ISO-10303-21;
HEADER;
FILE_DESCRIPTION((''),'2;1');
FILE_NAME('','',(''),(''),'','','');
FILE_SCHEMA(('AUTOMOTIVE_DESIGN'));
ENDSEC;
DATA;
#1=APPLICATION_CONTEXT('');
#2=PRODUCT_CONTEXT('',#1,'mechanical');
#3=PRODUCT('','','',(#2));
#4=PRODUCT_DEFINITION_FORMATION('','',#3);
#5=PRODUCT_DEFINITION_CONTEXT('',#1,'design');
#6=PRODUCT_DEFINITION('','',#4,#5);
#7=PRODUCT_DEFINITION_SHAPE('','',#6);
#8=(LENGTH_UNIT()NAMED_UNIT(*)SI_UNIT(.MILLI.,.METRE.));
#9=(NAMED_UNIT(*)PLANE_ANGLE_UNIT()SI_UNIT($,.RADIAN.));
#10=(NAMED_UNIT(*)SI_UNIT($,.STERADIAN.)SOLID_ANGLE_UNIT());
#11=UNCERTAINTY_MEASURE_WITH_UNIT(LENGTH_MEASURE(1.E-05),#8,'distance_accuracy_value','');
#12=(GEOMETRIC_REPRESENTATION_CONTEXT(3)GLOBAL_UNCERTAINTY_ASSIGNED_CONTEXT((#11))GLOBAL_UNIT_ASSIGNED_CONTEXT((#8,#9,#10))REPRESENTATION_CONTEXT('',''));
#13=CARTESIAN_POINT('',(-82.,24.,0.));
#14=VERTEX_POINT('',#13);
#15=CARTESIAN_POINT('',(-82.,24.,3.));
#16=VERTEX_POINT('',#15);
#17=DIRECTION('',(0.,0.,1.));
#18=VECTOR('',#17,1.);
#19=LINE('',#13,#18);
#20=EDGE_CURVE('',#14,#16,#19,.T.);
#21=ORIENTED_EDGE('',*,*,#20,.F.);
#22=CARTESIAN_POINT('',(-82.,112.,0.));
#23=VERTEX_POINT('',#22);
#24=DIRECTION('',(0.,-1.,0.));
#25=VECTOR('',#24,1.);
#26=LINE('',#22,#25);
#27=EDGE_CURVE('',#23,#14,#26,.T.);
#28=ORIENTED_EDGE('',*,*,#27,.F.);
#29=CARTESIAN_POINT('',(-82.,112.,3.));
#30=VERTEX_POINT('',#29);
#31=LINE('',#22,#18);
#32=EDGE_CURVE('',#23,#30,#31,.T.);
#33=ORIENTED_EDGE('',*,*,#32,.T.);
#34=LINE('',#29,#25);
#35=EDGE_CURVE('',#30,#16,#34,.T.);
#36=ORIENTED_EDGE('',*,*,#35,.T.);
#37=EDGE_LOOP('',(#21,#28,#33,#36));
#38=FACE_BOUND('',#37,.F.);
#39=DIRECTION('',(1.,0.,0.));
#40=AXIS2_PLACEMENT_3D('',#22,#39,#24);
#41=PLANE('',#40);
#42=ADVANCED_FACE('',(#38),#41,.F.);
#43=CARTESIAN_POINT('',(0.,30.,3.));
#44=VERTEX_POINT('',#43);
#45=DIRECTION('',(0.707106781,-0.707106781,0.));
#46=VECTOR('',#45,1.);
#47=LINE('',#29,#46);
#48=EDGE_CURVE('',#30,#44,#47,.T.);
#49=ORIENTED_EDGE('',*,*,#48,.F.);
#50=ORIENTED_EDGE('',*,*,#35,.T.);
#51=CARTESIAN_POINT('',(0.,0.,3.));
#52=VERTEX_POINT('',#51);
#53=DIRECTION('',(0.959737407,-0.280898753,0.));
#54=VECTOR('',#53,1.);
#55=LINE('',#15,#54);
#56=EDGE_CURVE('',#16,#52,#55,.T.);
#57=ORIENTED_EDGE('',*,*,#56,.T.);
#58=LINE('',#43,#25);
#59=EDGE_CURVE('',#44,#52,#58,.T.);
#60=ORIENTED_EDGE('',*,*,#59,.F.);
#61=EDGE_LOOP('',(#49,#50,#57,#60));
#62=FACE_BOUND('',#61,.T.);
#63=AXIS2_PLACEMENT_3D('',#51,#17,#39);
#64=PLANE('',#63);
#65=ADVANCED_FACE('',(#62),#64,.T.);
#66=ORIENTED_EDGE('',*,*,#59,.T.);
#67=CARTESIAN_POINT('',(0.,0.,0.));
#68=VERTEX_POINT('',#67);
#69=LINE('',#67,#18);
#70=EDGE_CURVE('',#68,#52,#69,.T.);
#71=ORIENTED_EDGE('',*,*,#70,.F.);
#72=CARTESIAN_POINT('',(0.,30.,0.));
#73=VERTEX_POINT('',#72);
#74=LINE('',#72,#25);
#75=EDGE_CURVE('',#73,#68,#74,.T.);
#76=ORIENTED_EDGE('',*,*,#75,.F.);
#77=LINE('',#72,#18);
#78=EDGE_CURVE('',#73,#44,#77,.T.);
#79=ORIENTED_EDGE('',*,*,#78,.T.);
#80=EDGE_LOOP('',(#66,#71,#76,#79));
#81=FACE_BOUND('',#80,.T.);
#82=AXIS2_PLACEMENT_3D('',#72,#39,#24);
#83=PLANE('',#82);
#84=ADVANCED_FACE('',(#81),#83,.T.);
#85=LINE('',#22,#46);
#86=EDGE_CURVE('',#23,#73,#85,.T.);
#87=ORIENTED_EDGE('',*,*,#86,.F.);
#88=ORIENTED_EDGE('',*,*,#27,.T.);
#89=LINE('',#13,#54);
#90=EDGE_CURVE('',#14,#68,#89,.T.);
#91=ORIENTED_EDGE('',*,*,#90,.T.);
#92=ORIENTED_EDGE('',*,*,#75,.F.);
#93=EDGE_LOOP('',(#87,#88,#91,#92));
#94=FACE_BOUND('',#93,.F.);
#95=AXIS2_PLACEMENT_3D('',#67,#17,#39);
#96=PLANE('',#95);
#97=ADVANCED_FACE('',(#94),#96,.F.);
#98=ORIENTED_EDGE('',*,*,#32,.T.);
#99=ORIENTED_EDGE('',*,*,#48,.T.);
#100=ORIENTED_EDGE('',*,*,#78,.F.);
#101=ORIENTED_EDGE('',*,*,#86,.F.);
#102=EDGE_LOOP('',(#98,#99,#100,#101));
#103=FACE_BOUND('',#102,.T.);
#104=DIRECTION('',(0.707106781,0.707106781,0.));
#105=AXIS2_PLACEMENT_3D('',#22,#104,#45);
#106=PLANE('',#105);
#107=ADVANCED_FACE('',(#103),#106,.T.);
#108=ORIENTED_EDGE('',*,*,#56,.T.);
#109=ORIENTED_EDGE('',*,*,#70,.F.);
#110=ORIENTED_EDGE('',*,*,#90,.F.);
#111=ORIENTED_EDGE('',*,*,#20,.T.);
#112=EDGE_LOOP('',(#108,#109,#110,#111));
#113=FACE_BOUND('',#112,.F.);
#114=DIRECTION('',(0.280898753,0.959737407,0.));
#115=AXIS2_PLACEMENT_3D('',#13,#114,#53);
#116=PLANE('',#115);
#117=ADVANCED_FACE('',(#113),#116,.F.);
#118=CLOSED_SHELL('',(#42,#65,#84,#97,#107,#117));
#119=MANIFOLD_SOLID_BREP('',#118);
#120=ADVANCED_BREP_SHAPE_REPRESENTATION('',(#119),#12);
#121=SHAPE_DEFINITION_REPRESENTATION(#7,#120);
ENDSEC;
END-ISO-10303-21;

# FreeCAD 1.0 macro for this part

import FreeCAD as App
import Part
import Sketcher

V = App.Vector
Q = App.Units.Quantity

doc = App.newDocument("Part")
params = doc.addObject("Spreadsheet::Sheet", "Params")
for row, (alias, value) in enumerate([
    ("sketch1_height", "88 mm"),
    ("sketch1_height2", "30 mm"),
    ("pad1_length", "3 mm"),
], start=1):
    params.set(f"A{row}", alias)
    params.set(f"B{row}", "=" + value)
    params.setAlias(f"B{row}", alias)

body = doc.addObject("PartDesign::Body", "Body")

# Sketch on XY plane
sketch1 = body.newObject("Sketcher::SketchObject", "Sketch")
sketch1.AttachmentSupport = (doc.getObject("XY_Plane"), [""])
sketch1.MapMode = "FlatFace"
sketch1.addGeometry([
    Part.LineSegment(V(0, 30, 0), V(-82, 112, 0)),
    Part.LineSegment(V(-82, 112, 0), V(-82, 24, 0)),
    Part.LineSegment(V(-82, 24, 0), V(0, 0, 0)),
    Part.LineSegment(V(0, 0, 0), V(0, 30, 0)),
], False)
sketch1.addConstraint([
    Sketcher.Constraint("Coincident", 0, 2, 1, 1),
    Sketcher.Constraint("Coincident", 1, 2, 2, 1),
    Sketcher.Constraint("Coincident", 2, 2, 3, 1),
    Sketcher.Constraint("Coincident", 3, 2, 0, 1),
    Sketcher.Constraint("Vertical", 1),
    Sketcher.Constraint("Vertical", 3),
    Sketcher.Constraint("Coincident", 2, 2, -1, 1),
    Sketcher.Constraint("DistanceY", 1, 2, 1, 1, Q("88 mm")),
    Sketcher.Constraint("DistanceY", 3, 1, 3, 2, Q("30 mm")),
    Sketcher.Constraint("Angle", 0, Q("135 deg")),
    Sketcher.Constraint("DistanceX", 0, 2, -1, 1, Q("82 mm")),
])
sketch1.setExpression("Constraints[7]", "Params.sketch1_height")
sketch1.setExpression("Constraints[8]", "Params.sketch1_height2")
pad1 = body.newObject("PartDesign::Pad", "Pad")
pad1.Profile = sketch1
pad1.setExpression("Length", "Params.pad1_length")

doc.recompute()
